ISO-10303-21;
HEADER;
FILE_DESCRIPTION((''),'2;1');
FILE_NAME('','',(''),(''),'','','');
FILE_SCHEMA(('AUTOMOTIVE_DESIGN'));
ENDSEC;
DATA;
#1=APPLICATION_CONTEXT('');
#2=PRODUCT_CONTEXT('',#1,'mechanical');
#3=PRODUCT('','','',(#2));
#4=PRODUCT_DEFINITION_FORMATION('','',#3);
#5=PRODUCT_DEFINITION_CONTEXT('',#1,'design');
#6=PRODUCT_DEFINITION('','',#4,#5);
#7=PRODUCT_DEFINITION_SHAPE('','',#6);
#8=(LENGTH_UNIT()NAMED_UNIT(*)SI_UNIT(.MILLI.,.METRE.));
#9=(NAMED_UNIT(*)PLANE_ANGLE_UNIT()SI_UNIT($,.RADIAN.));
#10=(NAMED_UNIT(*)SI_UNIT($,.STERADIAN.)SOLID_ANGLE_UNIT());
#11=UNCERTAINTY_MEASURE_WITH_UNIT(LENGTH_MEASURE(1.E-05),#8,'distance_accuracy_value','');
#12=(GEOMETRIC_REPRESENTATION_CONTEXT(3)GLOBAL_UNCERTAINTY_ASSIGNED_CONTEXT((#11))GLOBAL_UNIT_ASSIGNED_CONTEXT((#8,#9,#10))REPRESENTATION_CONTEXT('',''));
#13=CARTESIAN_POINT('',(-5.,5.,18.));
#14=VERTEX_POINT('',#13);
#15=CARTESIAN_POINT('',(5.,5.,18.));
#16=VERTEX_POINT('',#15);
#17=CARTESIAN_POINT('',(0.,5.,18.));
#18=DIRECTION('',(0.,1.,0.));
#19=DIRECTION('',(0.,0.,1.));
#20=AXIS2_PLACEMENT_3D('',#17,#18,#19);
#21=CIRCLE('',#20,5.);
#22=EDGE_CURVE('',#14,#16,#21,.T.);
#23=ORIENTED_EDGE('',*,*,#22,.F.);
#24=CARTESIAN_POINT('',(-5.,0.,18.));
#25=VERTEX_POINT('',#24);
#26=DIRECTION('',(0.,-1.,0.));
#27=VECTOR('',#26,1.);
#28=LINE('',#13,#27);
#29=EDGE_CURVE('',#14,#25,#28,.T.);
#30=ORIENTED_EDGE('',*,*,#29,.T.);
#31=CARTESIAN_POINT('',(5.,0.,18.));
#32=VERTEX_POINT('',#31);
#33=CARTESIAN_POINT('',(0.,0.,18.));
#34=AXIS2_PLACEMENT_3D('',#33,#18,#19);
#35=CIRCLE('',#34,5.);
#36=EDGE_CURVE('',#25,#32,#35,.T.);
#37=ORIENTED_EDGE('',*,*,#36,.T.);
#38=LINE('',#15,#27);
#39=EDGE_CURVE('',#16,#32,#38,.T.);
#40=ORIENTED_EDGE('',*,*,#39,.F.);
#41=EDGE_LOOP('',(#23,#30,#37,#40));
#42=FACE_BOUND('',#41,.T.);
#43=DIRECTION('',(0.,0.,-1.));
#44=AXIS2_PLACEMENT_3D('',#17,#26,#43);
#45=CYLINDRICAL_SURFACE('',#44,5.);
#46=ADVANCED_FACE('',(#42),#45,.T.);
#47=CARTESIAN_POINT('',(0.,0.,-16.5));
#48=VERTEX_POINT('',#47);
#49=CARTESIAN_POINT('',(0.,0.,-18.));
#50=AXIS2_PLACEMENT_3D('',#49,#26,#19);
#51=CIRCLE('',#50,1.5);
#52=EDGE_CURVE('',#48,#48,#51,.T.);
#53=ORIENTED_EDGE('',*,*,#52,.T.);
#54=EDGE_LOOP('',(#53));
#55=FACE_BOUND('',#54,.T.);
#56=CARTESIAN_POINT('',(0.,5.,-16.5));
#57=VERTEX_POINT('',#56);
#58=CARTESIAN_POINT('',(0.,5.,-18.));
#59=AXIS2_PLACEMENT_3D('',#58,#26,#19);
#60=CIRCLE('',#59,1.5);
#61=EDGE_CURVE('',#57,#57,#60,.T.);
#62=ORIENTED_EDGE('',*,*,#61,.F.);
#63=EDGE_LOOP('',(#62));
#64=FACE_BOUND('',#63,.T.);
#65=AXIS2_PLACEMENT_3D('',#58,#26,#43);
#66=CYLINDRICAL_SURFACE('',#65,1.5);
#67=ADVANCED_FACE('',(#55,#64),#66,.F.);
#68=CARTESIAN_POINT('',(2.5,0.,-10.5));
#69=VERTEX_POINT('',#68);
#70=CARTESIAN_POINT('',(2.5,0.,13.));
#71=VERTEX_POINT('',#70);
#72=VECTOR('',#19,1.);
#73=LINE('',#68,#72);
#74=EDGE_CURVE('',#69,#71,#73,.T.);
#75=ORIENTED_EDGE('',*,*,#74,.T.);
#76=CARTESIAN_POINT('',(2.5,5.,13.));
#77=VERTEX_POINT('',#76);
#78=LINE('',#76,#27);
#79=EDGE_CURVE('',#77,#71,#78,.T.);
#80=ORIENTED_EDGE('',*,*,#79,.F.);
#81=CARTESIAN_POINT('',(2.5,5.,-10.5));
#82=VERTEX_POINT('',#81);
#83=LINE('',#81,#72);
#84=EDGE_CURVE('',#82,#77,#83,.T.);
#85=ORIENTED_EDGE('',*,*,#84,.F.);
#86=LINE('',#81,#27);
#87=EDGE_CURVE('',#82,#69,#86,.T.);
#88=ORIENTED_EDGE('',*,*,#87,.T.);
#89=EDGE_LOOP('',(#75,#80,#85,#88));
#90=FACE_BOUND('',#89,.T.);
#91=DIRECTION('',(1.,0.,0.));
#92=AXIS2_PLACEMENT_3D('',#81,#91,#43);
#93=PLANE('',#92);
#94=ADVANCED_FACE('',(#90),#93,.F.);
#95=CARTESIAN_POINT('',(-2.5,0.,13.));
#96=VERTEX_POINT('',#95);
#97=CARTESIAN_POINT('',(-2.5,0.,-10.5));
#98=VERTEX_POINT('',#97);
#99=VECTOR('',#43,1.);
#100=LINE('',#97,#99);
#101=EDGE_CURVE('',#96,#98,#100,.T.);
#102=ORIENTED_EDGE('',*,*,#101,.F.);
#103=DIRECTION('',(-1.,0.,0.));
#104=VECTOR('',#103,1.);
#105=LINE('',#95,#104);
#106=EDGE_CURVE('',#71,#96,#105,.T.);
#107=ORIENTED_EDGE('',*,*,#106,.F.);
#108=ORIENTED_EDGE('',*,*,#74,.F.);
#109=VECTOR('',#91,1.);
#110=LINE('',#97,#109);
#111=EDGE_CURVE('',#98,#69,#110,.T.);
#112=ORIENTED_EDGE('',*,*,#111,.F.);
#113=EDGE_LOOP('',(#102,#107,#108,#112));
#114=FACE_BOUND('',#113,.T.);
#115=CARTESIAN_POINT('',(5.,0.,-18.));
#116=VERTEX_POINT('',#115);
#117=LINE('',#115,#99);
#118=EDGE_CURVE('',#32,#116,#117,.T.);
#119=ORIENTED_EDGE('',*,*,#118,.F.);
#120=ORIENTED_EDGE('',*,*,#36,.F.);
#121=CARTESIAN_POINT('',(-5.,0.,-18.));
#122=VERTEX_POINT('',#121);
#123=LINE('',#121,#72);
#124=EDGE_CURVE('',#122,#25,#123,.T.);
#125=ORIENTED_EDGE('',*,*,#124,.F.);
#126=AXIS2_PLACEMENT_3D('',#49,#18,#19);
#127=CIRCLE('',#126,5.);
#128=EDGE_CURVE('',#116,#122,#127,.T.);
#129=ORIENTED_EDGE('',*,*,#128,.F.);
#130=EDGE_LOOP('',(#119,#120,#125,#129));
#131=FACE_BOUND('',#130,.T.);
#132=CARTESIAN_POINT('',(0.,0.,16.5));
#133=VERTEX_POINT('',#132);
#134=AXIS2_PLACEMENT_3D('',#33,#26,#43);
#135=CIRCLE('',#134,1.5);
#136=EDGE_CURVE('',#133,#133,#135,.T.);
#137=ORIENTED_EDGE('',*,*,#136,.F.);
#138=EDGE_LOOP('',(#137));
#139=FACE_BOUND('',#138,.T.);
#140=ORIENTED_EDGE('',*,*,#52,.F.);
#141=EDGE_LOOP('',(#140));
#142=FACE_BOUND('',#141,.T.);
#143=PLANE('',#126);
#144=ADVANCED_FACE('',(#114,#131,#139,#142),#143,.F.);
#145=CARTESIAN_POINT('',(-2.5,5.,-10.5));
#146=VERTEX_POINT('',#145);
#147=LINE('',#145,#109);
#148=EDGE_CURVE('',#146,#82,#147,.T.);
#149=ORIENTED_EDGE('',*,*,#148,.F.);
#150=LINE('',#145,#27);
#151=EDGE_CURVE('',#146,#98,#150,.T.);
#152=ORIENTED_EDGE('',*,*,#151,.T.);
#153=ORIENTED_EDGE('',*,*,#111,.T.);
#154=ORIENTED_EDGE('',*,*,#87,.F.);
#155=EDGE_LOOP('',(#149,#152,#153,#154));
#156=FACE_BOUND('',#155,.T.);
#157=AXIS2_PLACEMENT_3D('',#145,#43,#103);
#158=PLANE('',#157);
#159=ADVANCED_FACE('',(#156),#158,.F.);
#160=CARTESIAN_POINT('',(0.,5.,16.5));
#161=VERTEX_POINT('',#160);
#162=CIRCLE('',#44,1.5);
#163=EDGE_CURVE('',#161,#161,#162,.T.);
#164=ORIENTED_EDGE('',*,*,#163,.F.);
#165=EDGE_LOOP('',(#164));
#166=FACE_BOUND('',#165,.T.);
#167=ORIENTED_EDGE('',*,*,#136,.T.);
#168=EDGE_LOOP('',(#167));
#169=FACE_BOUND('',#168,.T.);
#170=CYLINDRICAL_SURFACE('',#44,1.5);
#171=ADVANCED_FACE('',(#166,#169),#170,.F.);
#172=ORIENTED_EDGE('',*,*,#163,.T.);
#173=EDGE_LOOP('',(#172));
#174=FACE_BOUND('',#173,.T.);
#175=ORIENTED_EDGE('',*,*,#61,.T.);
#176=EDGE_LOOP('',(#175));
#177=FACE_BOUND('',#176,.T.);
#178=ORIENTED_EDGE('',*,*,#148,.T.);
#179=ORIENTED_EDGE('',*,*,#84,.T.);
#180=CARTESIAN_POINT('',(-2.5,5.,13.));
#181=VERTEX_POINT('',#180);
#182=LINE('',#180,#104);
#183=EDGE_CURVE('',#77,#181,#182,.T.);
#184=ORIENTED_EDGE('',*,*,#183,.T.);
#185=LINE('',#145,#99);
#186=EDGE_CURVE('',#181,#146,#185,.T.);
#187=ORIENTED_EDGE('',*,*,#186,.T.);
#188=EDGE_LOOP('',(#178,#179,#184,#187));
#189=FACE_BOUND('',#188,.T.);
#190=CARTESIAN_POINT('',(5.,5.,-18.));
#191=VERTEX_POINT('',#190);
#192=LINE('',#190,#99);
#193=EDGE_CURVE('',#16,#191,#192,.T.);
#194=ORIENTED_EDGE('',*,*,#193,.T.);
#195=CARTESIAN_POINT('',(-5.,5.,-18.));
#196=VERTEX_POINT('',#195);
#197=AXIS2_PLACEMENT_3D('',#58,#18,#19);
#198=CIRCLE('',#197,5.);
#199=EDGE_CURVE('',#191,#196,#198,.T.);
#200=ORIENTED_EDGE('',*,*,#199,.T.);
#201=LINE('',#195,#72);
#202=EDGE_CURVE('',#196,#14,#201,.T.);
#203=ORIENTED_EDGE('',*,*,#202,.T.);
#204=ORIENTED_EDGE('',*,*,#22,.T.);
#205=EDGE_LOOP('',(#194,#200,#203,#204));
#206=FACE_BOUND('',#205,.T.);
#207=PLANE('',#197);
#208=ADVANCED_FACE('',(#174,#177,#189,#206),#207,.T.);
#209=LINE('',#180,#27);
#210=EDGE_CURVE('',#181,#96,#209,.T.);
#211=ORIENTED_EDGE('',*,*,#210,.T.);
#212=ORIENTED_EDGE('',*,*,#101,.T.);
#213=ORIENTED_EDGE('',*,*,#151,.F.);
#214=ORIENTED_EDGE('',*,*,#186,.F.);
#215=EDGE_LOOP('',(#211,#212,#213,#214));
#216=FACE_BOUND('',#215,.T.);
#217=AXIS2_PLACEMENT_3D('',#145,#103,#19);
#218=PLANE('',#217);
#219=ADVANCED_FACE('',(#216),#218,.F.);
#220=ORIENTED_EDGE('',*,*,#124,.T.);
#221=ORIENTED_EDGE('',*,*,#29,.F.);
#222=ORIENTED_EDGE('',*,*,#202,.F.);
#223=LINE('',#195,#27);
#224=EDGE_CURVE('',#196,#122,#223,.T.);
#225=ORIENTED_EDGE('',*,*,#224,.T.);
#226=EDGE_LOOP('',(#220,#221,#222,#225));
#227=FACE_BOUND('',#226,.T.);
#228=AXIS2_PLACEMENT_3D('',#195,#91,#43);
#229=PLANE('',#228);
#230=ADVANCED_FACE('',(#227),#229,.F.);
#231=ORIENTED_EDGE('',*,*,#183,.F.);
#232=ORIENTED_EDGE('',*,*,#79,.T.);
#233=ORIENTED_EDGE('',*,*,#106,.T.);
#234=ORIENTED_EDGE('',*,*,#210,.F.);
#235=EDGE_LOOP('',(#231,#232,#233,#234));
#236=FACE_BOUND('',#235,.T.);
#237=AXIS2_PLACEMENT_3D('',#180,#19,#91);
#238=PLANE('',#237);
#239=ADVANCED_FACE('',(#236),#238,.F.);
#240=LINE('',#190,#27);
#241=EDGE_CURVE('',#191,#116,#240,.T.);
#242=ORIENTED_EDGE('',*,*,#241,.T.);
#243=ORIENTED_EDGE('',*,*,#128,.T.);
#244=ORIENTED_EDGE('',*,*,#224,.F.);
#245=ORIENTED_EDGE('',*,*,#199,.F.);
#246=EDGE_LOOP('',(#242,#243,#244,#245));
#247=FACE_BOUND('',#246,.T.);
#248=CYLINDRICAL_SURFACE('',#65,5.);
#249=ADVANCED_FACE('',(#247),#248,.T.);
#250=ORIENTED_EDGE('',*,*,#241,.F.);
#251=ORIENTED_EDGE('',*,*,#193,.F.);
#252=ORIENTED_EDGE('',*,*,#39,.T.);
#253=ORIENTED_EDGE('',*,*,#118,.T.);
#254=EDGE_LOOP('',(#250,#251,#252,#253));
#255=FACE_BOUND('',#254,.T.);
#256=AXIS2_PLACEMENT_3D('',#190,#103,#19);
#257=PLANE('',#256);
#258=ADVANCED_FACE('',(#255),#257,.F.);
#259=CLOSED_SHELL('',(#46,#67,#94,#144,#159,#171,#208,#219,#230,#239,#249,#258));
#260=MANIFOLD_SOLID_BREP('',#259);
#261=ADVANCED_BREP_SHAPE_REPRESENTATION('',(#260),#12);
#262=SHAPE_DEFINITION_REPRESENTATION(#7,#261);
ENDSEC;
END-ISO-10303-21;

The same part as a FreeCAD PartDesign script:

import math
import FreeCAD as App
import Part
import Sketcher

V = App.Vector

doc = App.newDocument("Part")
body = doc.addObject("PartDesign::Body", "Body")

sketch1 = body.newObject("Sketcher::SketchObject", "Sketch")
sketch1.AttachmentSupport = (doc.getObject("XZ_Plane"), [""])
sketch1.MapMode = "FlatFace"
sketch1.addGeometry(Part.LineSegment(V(5, 18, 0), V(5, -18, 0)), False)
sketch1.addGeometry(Part.ArcOfCircle(Part.Circle(V(0, -18, 0), V(0, 0, 1), 5), math.radians(180), math.radians(360)), False)
sketch1.addGeometry(Part.LineSegment(V(-5, -18, 0), V(-5, 18, 0)), False)
sketch1.addGeometry(Part.ArcOfCircle(Part.Circle(V(0, 18, 0), V(0, 0, 1), 5), math.radians(0), math.radians(180)), False)
sketch1.addConstraint(Sketcher.Constraint("Tangent", 0, 2, 1, 2))
sketch1.addConstraint(Sketcher.Constraint("Tangent", 1, 1, 2, 1))
sketch1.addConstraint(Sketcher.Constraint("Tangent", 2, 2, 3, 2))
sketch1.addConstraint(Sketcher.Constraint("Tangent", 3, 1, 0, 1))
sketch1.addConstraint(Sketcher.Constraint("Vertical", 0))
sketch1.addConstraint(Sketcher.Constraint("Vertical", 2))
sketch1.addConstraint(Sketcher.Constraint("Symmetric", 1, 3, 3, 3, -1, 1))
sketch1.addConstraint(Sketcher.Constraint("Radius", 1, 5.0))
sketch1.addConstraint(Sketcher.Constraint("DistanceY", 0, 2, 0, 1, 36.0))
pad1 = body.newObject("PartDesign::Pad", "Pad")
pad1.Profile = sketch1
pad1.Length = 5
pad1.Reversed = True

sketch2 = body.newObject("Sketcher::SketchObject", "Sketch001")
sketch2.AttachmentSupport = (doc.getObject("XZ_Plane"), [""])
sketch2.MapMode = "FlatFace"
sketch2.addGeometry(Part.LineSegment(V(-2, 13, 0), V(-2, -10, 0)), False)
sketch2.addGeometry(Part.LineSegment(V(-2, -10, 0), V(2, -10, 0)), False)
sketch2.addGeometry(Part.LineSegment(V(2, -10, 0), V(2, 13, 0)), False)
sketch2.addGeometry(Part.LineSegment(V(2, 13, 0), V(-2, 13, 0)), False)
sketch2.addConstraint(Sketcher.Constraint("Coincident", 0, 2, 1, 1))
sketch2.addConstraint(Sketcher.Constraint("Coincident", 1, 2, 2, 1))
sketch2.addConstraint(Sketcher.Constraint("Coincident", 2, 2, 3, 1))
sketch2.addConstraint(Sketcher.Constraint("Coincident", 3, 2, 0, 1))
sketch2.addConstraint(Sketcher.Constraint("Vertical", 0))
sketch2.addConstraint(Sketcher.Constraint("Horizontal", 1))
sketch2.addConstraint(Sketcher.Constraint("Vertical", 2))
sketch2.addConstraint(Sketcher.Constraint("Horizontal", 3))
sketch2.addConstraint(Sketcher.Constraint("DistanceX", 1, 1, 1, 2, 5.0))
sketch2.addConstraint(Sketcher.Constraint("DistanceY", 0, 2, 0, 1, 23.5))
sketch2.addConstraint(Sketcher.Constraint("DistanceY", -1, 1, 2, 2, 13.0))
sketch2.addConstraint(Sketcher.Constraint("DistanceX", 0, 2, -1, 1, 2.5))
pocket1 = body.newObject("PartDesign::Pocket", "Pocket")
pocket1.Profile = sketch2
pocket1.Length = 5

sketch3 = body.newObject("Sketcher::SketchObject", "Sketch002")
sketch3.AttachmentSupport = (doc.getObject("XZ_Plane"), [""])
sketch3.MapMode = "FlatFace"
sketch3.addGeometry(Part.Circle(V(0, 18, 0), V(0, 0, 1), 1.5), False)
sketch3.addGeometry(Part.Circle(V(0, -18, 0), V(0, 0, 1), 1.5), False)
sketch3.addConstraint(Sketcher.Constraint("Equal", 0, 1))
sketch3.addConstraint(Sketcher.Constraint("Symmetric", 0, 3, 1, 3, -1, 1))
sketch3.addConstraint(Sketcher.Constraint("PointOnObject", 0, 3, -2))
sketch3.addConstraint(Sketcher.Constraint("Diameter", 0, 3.0))
sketch3.addConstraint(Sketcher.Constraint("DistanceY", -1, 1, 0, 3, 18.0))
pocket2 = body.newObject("PartDesign::Pocket", "Pocket001")
pocket2.Profile = sketch3
pocket2.Length = 5

doc.recompute()
